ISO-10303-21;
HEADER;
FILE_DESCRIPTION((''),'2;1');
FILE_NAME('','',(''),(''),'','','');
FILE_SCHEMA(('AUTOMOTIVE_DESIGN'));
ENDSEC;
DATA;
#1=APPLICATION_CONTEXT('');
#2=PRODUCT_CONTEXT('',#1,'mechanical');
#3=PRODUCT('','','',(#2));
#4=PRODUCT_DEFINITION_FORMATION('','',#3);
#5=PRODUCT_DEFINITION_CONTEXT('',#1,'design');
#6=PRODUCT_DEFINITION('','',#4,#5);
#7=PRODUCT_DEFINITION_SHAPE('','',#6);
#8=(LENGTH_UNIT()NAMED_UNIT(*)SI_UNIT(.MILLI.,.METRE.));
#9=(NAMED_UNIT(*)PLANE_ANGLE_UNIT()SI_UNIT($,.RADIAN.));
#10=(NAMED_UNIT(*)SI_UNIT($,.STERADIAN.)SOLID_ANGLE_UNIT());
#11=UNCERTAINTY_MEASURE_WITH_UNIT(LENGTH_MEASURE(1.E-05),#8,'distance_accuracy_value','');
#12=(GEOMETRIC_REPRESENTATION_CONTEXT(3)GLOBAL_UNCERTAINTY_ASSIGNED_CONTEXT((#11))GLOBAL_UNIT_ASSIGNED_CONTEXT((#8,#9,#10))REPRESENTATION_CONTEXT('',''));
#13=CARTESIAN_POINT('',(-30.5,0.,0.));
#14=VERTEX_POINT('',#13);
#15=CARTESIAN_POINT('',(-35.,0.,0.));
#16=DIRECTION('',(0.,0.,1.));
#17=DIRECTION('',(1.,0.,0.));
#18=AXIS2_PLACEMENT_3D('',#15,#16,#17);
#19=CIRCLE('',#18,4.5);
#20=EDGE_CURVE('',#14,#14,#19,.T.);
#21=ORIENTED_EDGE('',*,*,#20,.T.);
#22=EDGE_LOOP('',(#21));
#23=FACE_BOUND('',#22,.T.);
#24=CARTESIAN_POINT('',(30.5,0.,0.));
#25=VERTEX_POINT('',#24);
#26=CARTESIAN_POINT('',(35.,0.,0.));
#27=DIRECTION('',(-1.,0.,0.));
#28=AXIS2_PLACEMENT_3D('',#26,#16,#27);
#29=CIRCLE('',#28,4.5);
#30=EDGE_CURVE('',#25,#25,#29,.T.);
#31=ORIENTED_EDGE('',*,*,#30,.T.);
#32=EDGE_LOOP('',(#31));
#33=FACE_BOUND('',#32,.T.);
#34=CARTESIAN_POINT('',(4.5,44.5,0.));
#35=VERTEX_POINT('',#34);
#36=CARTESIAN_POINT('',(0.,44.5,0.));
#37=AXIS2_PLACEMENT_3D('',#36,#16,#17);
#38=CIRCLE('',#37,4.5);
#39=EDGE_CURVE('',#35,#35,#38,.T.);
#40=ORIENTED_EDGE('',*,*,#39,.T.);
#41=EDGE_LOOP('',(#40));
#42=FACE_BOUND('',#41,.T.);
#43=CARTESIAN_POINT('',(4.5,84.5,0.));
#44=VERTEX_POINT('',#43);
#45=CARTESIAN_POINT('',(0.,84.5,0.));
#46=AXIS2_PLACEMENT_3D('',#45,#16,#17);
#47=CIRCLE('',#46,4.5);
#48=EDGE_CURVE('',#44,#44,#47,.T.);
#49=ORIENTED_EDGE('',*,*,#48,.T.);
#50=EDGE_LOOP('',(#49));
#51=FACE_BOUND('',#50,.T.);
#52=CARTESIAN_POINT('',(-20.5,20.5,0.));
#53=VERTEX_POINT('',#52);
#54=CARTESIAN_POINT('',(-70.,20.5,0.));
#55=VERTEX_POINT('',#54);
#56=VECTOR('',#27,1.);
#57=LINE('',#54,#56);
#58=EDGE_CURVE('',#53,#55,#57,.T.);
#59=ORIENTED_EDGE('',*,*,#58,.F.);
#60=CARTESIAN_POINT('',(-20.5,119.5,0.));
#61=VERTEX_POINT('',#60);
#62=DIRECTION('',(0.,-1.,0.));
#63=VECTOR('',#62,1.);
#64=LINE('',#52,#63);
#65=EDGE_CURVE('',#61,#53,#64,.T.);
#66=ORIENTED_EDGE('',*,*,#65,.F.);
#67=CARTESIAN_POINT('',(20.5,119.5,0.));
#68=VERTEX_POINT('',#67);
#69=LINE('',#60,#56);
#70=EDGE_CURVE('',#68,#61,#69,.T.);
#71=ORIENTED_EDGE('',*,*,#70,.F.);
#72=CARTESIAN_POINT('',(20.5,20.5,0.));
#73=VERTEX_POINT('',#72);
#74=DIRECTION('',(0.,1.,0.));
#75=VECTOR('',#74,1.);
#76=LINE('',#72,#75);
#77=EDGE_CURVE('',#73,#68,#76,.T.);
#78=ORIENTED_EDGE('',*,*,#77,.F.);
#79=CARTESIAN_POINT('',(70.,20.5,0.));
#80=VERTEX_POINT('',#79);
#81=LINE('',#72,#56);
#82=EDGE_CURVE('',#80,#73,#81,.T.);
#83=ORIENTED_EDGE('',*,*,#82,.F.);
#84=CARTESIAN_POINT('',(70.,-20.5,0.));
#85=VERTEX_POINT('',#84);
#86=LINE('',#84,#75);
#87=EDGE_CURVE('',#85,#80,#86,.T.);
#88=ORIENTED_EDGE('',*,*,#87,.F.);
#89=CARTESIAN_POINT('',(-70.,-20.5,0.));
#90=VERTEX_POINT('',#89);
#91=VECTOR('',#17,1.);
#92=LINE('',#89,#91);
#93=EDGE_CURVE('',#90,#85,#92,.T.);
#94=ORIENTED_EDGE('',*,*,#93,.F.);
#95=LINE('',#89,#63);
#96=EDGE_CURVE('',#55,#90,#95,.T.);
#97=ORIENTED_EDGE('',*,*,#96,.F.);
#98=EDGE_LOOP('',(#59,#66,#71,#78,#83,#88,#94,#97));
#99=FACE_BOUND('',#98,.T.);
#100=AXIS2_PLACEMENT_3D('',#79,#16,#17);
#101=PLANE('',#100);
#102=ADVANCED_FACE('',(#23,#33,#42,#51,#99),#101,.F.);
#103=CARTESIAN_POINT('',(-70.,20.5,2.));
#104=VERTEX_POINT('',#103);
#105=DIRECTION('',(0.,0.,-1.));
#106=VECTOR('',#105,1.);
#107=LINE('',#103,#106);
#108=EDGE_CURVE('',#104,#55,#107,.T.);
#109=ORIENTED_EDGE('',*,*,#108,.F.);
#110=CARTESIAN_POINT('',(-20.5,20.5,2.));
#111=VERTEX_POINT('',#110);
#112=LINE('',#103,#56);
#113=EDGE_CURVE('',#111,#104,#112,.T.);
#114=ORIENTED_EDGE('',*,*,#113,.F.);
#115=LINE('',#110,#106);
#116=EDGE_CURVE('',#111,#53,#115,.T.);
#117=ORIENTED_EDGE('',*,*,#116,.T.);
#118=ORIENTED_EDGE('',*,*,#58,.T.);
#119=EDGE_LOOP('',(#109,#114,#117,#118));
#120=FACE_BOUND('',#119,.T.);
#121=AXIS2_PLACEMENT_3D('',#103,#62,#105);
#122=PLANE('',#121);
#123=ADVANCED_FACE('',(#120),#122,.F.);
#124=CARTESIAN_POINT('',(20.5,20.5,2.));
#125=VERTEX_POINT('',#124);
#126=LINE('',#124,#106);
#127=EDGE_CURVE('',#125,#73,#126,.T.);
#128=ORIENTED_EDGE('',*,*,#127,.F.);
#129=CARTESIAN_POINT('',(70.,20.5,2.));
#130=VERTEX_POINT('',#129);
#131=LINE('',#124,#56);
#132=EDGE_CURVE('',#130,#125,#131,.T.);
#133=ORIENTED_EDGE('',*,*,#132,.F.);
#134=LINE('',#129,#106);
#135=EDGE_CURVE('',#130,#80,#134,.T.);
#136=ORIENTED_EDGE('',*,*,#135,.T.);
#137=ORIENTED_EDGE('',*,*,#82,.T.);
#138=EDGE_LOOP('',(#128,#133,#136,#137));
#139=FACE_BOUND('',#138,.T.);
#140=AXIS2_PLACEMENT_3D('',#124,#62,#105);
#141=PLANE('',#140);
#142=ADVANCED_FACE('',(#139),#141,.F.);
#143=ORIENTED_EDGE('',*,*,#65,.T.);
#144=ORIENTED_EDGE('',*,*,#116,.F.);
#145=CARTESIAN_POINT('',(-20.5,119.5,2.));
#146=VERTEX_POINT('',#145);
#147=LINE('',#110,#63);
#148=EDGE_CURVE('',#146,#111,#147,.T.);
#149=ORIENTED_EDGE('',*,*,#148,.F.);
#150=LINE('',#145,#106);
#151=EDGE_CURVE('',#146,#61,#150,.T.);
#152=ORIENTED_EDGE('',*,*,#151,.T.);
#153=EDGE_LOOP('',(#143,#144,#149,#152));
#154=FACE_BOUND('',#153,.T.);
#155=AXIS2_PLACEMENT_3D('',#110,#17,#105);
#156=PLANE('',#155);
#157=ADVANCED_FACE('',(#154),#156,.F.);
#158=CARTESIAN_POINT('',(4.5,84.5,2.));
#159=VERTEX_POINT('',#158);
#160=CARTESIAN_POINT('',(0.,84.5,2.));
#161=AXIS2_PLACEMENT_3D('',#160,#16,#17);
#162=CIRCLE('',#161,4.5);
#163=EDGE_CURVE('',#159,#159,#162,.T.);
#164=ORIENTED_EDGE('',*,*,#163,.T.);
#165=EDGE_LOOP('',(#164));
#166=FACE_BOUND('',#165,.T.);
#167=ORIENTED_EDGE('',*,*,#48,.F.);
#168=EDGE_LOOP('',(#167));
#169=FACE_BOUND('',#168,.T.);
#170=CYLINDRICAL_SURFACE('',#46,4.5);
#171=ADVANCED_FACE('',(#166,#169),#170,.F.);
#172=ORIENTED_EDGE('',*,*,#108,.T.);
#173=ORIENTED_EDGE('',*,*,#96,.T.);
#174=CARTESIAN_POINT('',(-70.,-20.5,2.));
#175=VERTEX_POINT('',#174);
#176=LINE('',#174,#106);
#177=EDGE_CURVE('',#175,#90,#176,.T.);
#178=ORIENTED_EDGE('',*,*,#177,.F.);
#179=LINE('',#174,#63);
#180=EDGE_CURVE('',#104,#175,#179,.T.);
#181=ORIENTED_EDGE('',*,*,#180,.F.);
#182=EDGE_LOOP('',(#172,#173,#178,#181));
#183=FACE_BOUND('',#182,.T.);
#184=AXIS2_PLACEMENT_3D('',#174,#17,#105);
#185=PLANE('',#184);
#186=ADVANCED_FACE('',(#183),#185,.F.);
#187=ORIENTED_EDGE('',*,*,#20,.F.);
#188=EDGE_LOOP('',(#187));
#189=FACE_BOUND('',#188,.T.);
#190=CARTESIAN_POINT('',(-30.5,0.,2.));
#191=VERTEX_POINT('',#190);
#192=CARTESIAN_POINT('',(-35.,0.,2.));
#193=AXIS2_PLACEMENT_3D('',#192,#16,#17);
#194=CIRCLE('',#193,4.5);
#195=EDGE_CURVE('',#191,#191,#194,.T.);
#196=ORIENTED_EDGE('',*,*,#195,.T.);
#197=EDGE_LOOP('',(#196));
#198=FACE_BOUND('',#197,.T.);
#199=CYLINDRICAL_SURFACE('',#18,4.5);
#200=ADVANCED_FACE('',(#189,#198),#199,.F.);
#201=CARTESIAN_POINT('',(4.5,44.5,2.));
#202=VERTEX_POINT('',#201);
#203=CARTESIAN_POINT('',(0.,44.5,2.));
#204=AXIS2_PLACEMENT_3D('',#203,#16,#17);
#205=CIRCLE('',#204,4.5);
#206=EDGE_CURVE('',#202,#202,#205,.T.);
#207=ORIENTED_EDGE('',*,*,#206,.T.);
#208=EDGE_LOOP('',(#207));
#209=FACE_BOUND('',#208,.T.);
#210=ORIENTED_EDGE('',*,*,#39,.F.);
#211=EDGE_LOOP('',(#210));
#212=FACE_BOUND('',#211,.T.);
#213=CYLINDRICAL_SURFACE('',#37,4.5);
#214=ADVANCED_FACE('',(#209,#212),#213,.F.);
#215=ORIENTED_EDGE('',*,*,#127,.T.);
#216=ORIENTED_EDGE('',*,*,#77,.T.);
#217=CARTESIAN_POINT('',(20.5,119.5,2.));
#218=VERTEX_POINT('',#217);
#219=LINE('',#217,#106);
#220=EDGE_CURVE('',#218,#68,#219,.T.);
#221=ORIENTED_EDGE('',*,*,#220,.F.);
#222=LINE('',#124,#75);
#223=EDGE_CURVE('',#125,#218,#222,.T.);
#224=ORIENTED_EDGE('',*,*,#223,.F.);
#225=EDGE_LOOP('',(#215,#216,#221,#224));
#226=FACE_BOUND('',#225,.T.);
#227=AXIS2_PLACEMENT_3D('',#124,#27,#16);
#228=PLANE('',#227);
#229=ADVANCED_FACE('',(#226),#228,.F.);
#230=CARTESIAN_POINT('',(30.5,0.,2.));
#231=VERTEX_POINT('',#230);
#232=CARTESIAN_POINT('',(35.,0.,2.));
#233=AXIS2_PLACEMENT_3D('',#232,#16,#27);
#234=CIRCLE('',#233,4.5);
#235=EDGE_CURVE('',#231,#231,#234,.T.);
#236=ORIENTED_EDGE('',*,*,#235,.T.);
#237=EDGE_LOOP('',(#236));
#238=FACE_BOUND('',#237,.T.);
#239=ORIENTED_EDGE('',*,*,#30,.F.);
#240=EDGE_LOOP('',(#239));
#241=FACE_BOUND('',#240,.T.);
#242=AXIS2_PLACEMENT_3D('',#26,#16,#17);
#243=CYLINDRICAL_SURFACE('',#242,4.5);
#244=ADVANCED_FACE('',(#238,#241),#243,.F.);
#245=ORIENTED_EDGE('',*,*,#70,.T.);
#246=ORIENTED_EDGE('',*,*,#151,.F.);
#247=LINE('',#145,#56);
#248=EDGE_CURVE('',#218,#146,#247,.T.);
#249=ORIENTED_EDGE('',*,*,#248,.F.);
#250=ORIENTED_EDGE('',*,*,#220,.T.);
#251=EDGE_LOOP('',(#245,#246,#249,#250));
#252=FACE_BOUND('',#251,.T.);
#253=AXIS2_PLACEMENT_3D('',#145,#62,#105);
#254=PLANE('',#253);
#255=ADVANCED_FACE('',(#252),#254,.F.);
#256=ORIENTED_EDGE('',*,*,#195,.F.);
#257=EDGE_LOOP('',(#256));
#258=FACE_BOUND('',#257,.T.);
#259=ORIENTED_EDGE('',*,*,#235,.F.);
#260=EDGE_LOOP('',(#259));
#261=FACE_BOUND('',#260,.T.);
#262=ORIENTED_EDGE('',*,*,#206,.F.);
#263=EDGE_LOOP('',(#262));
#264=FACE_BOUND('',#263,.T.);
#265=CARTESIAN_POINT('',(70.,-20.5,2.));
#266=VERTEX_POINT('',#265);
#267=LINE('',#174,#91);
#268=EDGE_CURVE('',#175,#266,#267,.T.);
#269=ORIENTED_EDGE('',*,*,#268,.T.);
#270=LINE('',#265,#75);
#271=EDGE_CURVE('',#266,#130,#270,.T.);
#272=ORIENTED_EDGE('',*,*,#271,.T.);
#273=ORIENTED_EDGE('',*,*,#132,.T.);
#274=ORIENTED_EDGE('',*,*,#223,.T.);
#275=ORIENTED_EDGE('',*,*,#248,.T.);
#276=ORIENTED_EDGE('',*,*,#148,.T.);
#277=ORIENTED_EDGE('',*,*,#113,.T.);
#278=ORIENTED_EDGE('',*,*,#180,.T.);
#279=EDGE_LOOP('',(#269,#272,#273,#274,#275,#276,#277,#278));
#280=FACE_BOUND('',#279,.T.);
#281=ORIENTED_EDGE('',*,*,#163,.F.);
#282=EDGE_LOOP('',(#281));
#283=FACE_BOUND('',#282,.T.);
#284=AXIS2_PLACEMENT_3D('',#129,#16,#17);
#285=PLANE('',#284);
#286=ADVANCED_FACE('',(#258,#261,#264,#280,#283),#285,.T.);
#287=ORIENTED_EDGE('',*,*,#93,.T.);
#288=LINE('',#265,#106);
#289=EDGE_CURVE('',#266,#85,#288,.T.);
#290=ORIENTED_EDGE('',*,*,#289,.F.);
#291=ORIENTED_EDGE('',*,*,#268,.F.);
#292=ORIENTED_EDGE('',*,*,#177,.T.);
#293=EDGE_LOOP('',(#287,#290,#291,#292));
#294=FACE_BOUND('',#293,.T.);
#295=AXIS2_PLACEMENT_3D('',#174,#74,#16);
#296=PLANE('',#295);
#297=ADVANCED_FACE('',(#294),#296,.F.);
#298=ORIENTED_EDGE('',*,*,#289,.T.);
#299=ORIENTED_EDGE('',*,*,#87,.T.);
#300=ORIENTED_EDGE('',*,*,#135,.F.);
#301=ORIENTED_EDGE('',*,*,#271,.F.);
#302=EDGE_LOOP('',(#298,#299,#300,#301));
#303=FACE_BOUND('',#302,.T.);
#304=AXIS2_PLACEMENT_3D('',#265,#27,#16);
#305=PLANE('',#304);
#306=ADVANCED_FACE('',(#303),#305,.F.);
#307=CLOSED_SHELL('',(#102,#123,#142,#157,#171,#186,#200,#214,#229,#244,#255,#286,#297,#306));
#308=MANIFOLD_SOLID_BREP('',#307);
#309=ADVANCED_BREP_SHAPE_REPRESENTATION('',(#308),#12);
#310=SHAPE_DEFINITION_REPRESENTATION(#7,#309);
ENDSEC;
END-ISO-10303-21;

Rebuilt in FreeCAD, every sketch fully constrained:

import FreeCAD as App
import Part
import Sketcher


def add_polygon(sketch, points):
    """Adds a closed chain of lines whose ends are joined by coincident constraints."""
    first, n = sketch.GeometryCount, len(points)
    for a, b in zip(points, points[1:] + points[:1]):
        sketch.addGeometry(Part.LineSegment(App.Vector(*a, 0), App.Vector(*b, 0)), False)
    for i in range(n):
        sketch.addConstraint(Sketcher.Constraint("Coincident", first + i, 2, first + (i + 1) % n, 1))

doc = App.newDocument("Part")
body = doc.addObject("PartDesign::Body", "Body")

sketch1 = body.newObject("Sketcher::SketchObject", "Sketch")
sketch1.AttachmentSupport = (doc.getObject("XY_Plane"), [""])
sketch1.MapMode = "FlatFace"
add_polygon(sketch1, [(-70, -20.5), (70, -20.5), (70, 20.5), (20.5, 20.5), (20.5, 119.5), (-20.5, 119.5), (-20.5, 20.5), (-70, 20.5)])
sketch1.addConstraint([
    Sketcher.Constraint("Horizontal", 0),
    Sketcher.Constraint("Vertical", 1),
    Sketcher.Constraint("Horizontal", 2),
    Sketcher.Constraint("Vertical", 3),
    Sketcher.Constraint("Horizontal", 4),
    Sketcher.Constraint("Vertical", 5),
    Sketcher.Constraint("Horizontal", 6),
    Sketcher.Constraint("Vertical", 7),
    Sketcher.Constraint("Symmetric", 0, 2, 6, 2, -1, 1),
    Sketcher.Constraint("Symmetric", 2, 2, 5, 2, -2),
    Sketcher.Constraint("Equal", 4, 1),
    Sketcher.Constraint("DistanceX", 0, 1, 0, 2, 140.0),
    Sketcher.Constraint("DistanceX", 4, 2, 4, 1, 41.0),
    Sketcher.Constraint("DistanceY", 3, 1, 3, 2, 99.0),
])
pad1 = body.newObject("PartDesign::Pad", "Pad")
pad1.Profile = sketch1
pad1.Length = 2

sketch2 = body.newObject("Sketcher::SketchObject", "Sketch001")
sketch2.AttachmentSupport = (doc.getObject("XY_Plane"), [""])
sketch2.MapMode = "FlatFace"
sketch2.AttachmentOffset = App.Placement(App.Vector(0, 0, 2), App.Rotation())
sketch2.addGeometry([
    Part.Circle(App.Vector(0, 84.5, 0), App.Vector(0, 0, 1), 4.5),
    Part.Circle(App.Vector(0, 44.5, 0), App.Vector(0, 0, 1), 4.5),
    Part.Circle(App.Vector(-35, 0, 0), App.Vector(0, 0, 1), 4.5),
    Part.Circle(App.Vector(35, 0, 0), App.Vector(0, 0, 1), 4.5),
], False)
sketch2.addConstraint([
    Sketcher.Constraint("Equal", 0, 1),
    Sketcher.Constraint("Equal", 1, 2),
    Sketcher.Constraint("Equal", 2, 3),
    Sketcher.Constraint("Symmetric", 2, 3, 3, 3, -1, 1),
    Sketcher.Constraint("PointOnObject", 0, 3, -2),
    Sketcher.Constraint("PointOnObject", 1, 3, -2),
    Sketcher.Constraint("PointOnObject", 2, 3, -1),
    Sketcher.Constraint("Diameter", 0, 9.0),
    Sketcher.Constraint("DistanceX", 2, 3, -1, 1, 35.0),
    Sketcher.Constraint("DistanceY", 1, 3, 0, 3, 40.0),
    Sketcher.Constraint("DistanceY", -1, 1, 0, 3, 84.5),
])
pocket1 = body.newObject("PartDesign::Pocket", "Pocket")
pocket1.Profile = sketch2
pocket1.Type = "ThroughAll"

doc.recompute()
